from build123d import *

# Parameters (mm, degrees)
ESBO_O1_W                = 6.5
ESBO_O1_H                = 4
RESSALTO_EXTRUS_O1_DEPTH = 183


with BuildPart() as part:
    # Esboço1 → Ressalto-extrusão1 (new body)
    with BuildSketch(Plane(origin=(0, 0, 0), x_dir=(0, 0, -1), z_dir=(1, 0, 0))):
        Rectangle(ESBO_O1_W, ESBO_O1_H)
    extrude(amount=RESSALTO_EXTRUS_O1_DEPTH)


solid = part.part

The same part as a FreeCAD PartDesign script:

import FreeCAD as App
import Part
import Sketcher
from FreeCAD import Vector


def add_polygon(sketch, points):
    """Adds a closed chain of lines whose ends are joined by coincident constraints."""
    first, n = sketch.GeometryCount, len(points)
    for a, b in zip(points, points[1:] + points[:1]):
        sketch.addGeometry(Part.LineSegment(App.Vector(*a, 0), App.Vector(*b, 0)), False)
    for i in range(n):
        sketch.addConstraint(Sketcher.Constraint("Coincident", first + i, 2, first + (i + 1) % n, 1))

doc = App.newDocument("Part")
params = doc.addObject("Spreadsheet::Sheet", "Params")
for row, (alias, value) in enumerate([
    ("sketch1_width", "4 mm"),
    ("sketch1_height", "6.5 mm"),
    ("pad1_length", "183 mm"),
], start=1):
    params.set(f"A{row}", alias)
    params.set(f"B{row}", "=" + value)
    params.setAlias(f"B{row}", alias)

body = doc.addObject("PartDesign::Body", "Body")

sketch1 = doc.addObject("Sketcher::SketchObject", "Sketch")
body.addObject(sketch1)
sketch1.AttachmentSupport = (doc.YZ_Plane, [""])
sketch1.MapMode = "FlatFace"
add_polygon(sketch1, [(2, 3.2), (-2, 3.2), (-2, -3.2), (2, -3.2)])
sketch1.addConstraint([
    Sketcher.Constraint("Horizontal", 0),
    Sketcher.Constraint("Vertical", 1),
    Sketcher.Constraint("Horizontal", 2),
    Sketcher.Constraint("Vertical", 3),
    Sketcher.Constraint("Symmetric", 0, 2, 2, 2, -1, 1),
    Sketcher.Constraint("DistanceX", 0, 2, 0, 1, 4.0),
    Sketcher.Constraint("DistanceY", 1, 2, 1, 1, 6.5),
])
sketch1.setExpression("Constraints[9]", "Params.sketch1_width")
sketch1.setExpression("Constraints[10]", "Params.sketch1_height")
pad1 = doc.addObject("PartDesign::Pad", "Pad")
body.addObject(pad1)
pad1.Profile = sketch1
pad1.setExpression("Length", "Params.pad1_length")

doc.recompute()
